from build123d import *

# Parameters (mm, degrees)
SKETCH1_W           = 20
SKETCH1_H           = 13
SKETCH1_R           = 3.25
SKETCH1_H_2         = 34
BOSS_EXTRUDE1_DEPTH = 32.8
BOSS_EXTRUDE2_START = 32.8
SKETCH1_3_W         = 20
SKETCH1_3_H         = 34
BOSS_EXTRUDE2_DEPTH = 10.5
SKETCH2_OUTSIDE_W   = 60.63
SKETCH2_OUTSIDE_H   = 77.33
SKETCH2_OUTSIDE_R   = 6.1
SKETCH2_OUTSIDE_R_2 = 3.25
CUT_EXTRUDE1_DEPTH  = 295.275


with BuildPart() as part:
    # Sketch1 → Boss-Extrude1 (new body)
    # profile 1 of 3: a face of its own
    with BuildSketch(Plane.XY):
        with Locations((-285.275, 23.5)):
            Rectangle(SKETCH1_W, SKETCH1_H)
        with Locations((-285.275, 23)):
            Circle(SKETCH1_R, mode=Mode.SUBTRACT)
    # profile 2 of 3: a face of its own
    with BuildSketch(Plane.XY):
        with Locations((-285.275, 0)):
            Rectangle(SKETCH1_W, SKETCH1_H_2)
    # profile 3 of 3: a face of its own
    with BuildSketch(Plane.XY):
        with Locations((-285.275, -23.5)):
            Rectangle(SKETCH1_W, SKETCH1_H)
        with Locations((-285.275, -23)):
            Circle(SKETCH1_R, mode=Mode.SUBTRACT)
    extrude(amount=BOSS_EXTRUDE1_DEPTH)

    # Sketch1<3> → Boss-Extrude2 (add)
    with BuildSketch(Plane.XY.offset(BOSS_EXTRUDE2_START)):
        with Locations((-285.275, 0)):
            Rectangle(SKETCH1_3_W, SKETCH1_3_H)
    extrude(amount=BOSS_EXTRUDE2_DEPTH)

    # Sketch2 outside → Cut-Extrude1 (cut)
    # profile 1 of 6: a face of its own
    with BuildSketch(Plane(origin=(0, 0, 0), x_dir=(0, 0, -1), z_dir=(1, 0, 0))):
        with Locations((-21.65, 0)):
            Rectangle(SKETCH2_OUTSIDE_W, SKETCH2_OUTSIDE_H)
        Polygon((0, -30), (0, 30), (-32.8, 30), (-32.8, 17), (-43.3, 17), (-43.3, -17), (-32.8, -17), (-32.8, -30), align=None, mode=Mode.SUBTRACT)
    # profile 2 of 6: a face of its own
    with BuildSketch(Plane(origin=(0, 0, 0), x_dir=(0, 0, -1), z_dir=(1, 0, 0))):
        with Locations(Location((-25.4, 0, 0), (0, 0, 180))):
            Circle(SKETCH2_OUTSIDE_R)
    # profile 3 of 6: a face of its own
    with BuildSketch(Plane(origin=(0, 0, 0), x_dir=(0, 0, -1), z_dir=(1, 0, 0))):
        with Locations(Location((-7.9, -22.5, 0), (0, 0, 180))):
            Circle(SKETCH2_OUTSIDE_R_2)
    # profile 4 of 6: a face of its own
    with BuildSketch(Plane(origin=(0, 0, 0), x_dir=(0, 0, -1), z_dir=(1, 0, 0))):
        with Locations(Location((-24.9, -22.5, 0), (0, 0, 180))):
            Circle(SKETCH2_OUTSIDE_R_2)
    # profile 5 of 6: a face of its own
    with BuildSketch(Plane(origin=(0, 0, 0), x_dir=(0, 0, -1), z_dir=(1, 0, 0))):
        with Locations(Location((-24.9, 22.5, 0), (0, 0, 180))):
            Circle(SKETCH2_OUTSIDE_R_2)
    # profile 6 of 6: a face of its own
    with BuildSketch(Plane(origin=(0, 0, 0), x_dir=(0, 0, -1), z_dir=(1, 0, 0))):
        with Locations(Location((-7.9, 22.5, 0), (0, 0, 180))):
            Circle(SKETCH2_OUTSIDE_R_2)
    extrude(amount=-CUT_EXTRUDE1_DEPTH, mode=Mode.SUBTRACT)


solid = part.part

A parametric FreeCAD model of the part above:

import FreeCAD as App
import Part
import Sketcher
from FreeCAD import Vector


def add_polygon(sketch, points):
    """Adds a closed chain of lines whose ends are joined by coincident constraints."""
    first, n = sketch.GeometryCount, len(points)
    for a, b in zip(points, points[1:] + points[:1]):
        sketch.addGeometry(Part.LineSegment(App.Vector(*a, 0), App.Vector(*b, 0)), False)
    for i in range(n):
        sketch.addConstraint(Sketcher.Constraint("Coincident", first + i, 2, first + (i + 1) % n, 1))

doc = App.newDocument("Part")
params = doc.addObject("Spreadsheet::Sheet", "Params")
for row, (alias, value) in enumerate([
    ("sketch1_diameter", "6.5 mm"),
    ("sketch1_width", "20 mm"),
    ("sketch1_height", "60 mm"),
    ("pad1_length", "32.8 mm"),
    ("sketch2_width", "20 mm"),
    ("sketch2_height", "34 mm"),
    ("pad2_length", "10.5 mm"),
    ("sketch3_diameter", "12.2 mm"),
    ("sketch3_diameter2", "6.5 mm"),
    ("sketch3_width", "60 mm"),
    ("sketch3_width2", "13 mm"),
    ("sketch3_height", "32.8 mm"),
    ("pocket1_length", "295.275 mm"),
], start=1):
    params.set(f"A{row}", alias)
    params.set(f"B{row}", "=" + value)
    params.setAlias(f"B{row}", alias)

body = doc.addObject("PartDesign::Body", "Body")

# Sketch on XY plane
sketch1 = body.newObject("Sketcher::SketchObject", "Sketch")
sketch1.AttachmentSupport = (doc.getObject("XY_Plane"), [""])
sketch1.MapMode = "FlatFace"
add_polygon(sketch1, [(-295.275, 30), (-295.275, -30), (-275.275, -30), (-275.275, 30)])  # lines 0-3
sketch1.addGeometry(Part.Circle(Vector(-285.275, 23, 0), Vector(0, 0, 1), 3.25), False)  # 4
sketch1.addGeometry(Part.Circle(Vector(-285.275, -23, 0), Vector(0, 0, 1), 3.25), False)  # 5
sketch1.addConstraint(Sketcher.Constraint("Vertical", 0))
sketch1.addConstraint(Sketcher.Constraint("Horizontal", 1))
sketch1.addConstraint(Sketcher.Constraint("Vertical", 2))
sketch1.addConstraint(Sketcher.Constraint("Horizontal", 3))
sketch1.addConstraint(Sketcher.Constraint("Equal", 4, 5))
sketch1.addConstraint(Sketcher.Constraint("Symmetric", 4, 3, 5, 3, -1))
sketch1.addConstraint(Sketcher.Constraint("Diameter", 4, 6.5))
sketch1.addConstraint(Sketcher.Constraint("DistanceX", 1, 1, 1, 2, 20.0))
sketch1.addConstraint(Sketcher.Constraint("DistanceY", 0, 2, 0, 1, 60.0))
sketch1.addConstraint(Sketcher.Constraint("DistanceY", -1, 1, 4, 3, 23.0))
sketch1.addConstraint(Sketcher.Constraint("DistanceY", 0, 2, -1, 1, 30.0))
sketch1.addConstraint(Sketcher.Constraint("DistanceX", 0, 2, 5, 3, 10.0))
sketch1.addConstraint(Sketcher.Constraint("DistanceX", 4, 3, -1, 1, 285.275))
sketch1.setExpression("Constraints[10]", "Params.sketch1_diameter")
sketch1.setExpression("Constraints[11]", "Params.sketch1_width")
sketch1.setExpression("Constraints[12]", "Params.sketch1_height")
pad1 = body.newObject("PartDesign::Pad", "Pad")
pad1.Profile = sketch1
pad1.setExpression("Length", "Params.pad1_length")

# Sketch on XY plane
sketch2 = body.newObject("Sketcher::SketchObject", "Sketch001")
sketch2.AttachmentSupport = (doc.getObject("XY_Plane"), [""])
sketch2.MapMode = "FlatFace"
sketch2.AttachmentOffset = App.Placement(Vector(0, 0, 32.8), App.Rotation())
add_polygon(sketch2, [(-295.275, 17), (-295.275, -17), (-275.275, -17), (-275.275, 17)])  # lines 0-3
sketch2.addConstraint(Sketcher.Constraint("Vertical", 0))
sketch2.addConstraint(Sketcher.Constraint("Horizontal", 1))
sketch2.addConstraint(Sketcher.Constraint("Vertical", 2))
sketch2.addConstraint(Sketcher.Constraint("Horizontal", 3))
sketch2.addConstraint(Sketcher.Constraint("DistanceX", 1, 1, 1, 2, 20.0))
sketch2.addConstraint(Sketcher.Constraint("DistanceY", 0, 2, 0, 1, 34.0))
sketch2.addConstraint(Sketcher.Constraint("DistanceY", 0, 2, -1, 1, 17.0))
sketch2.addConstraint(Sketcher.Constraint("DistanceX", 0, 2, -1, 1, 295.275))
sketch2.setExpression("Constraints[8]", "Params.sketch2_width")
sketch2.setExpression("Constraints[9]", "Params.sketch2_height")
pad2 = body.newObject("PartDesign::Pad", "Pad001")
pad2.Profile = sketch2
pad2.setExpression("Length", "Params.pad2_length")

# Sketch on YZ plane
sketch3 = body.newObject("Sketcher::SketchObject", "Sketch002")
sketch3.AttachmentSupport = (doc.getObject("YZ_Plane"), [""])
sketch3.MapMode = "FlatFace"
add_polygon(sketch3, [(38.665, 51.965), (-38.665, 51.965), (-38.665, -8.665), (38.665, -8.665)])  # lines 0-3
add_polygon(sketch3, [(30, 0), (-30, 0), (-30, 32.8), (-17, 32.8), (-17, 43.3), (17, 43.3), (17, 32.8), (30, 32.8)])  # lines 4-11
sketch3.addGeometry(Part.Circle(Vector(0, 25.4, 0), Vector(0, 0, 1), 6.1), False)  # 12
sketch3.addGeometry(Part.Circle(Vector(-22.5, 7.9, 0), Vector(0, 0, 1), 3.25), False)  # 13
sketch3.addGeometry(Part.Circle(Vector(-22.5, 24.9, 0), Vector(0, 0, 1), 3.25), False)  # 14
sketch3.addGeometry(Part.Circle(Vector(22.5, 24.9, 0), Vector(0, 0, 1), 3.25), False)  # 15
sketch3.addGeometry(Part.Circle(Vector(22.5, 7.9, 0), Vector(0, 0, 1), 3.25), False)  # 16
sketch3.addConstraint(Sketcher.Constraint("Horizontal", 0))
sketch3.addConstraint(Sketcher.Constraint("Vertical", 1))
sketch3.addConstraint(Sketcher.Constraint("Horizontal", 2))
sketch3.addConstraint(Sketcher.Constraint("Vertical", 3))
sketch3.addConstraint(Sketcher.Constraint("Horizontal", 4))
sketch3.addConstraint(Sketcher.Constraint("Vertical", 5))
sketch3.addConstraint(Sketcher.Constraint("Horizontal", 6))
sketch3.addConstraint(Sketcher.Constraint("Vertical", 7))
sketch3.addConstraint(Sketcher.Constraint("Horizontal", 8))
sketch3.addConstraint(Sketcher.Constraint("Vertical", 9))
sketch3.addConstraint(Sketcher.Constraint("Horizontal", 10))
sketch3.addConstraint(Sketcher.Constraint("Vertical", 11))
sketch3.addConstraint(Sketcher.Constraint("Equal", 13, 14))
sketch3.addConstraint(Sketcher.Constraint("Equal", 14, 15))
sketch3.addConstraint(Sketcher.Constraint("Equal", 15, 16))
sketch3.addConstraint(Sketcher.Constraint("Symmetric", 4, 2, 11, 2, -1, 1))
sketch3.addConstraint(Sketcher.Constraint("Symmetric", 14, 3, 15, 3, -2))
sketch3.addConstraint(Sketcher.Constraint("Symmetric", 13, 3, 16, 3, -2))
sketch3.addConstraint(Sketcher.Constraint("Symmetric", 6, 2, 9, 2, -2))
sketch3.addConstraint(Sketcher.Constraint("PointOnObject", 12, 3, -2))
sketch3.addConstraint(Sketcher.Constraint("Vertical", 13, 3, 14, 3))
sketch3.addConstraint(Sketcher.Constraint("Diameter", 12, 12.2))
sketch3.addConstraint(Sketcher.Constraint("Diameter", 13, 6.5))
sketch3.addConstraint(Sketcher.Constraint("DistanceX", 4, 2, 4, 1, 60.0))
sketch3.addConstraint(Sketcher.Constraint("DistanceX", 6, 1, 6, 2, 13.0))
sketch3.addConstraint(Sketcher.Constraint("DistanceY", 5, 1, 5, 2, 32.8))
sketch3.addConstraint(Sketcher.Constraint("DistanceY", 7, 1, 7, 2, 10.5))
sketch3.addConstraint(Sketcher.Constraint("DistanceY", 13, 3, 14, 3, 17.0))
sketch3.addConstraint(Sketcher.Constraint("DistanceX", 14, 3, 15, 3, 45.0))
sketch3.addConstraint(Sketcher.Constraint("DistanceX", 0, 2, 0, 1, 77.33))
sketch3.addConstraint(Sketcher.Constraint("DistanceY", 1, 2, 1, 1, 60.63))
sketch3.addConstraint(Sketcher.Constraint("DistanceY", -1, 1, 12, 3, 25.4))
sketch3.addConstraint(Sketcher.Constraint("DistanceY", -1, 1, 13, 3, 7.9))
sketch3.addConstraint(Sketcher.Constraint("DistanceX", 0, 2, -1, 1, 38.665))
sketch3.addConstraint(Sketcher.Constraint("DistanceY", -1, 1, 0, 2, 51.965))
sketch3.setExpression("Constraints[33]", "Params.sketch3_diameter")
sketch3.setExpression("Constraints[34]", "Params.sketch3_diameter2")
sketch3.setExpression("Constraints[35]", "Params.sketch3_width")
sketch3.setExpression("Constraints[36]", "Params.sketch3_width2")
sketch3.setExpression("Constraints[37]", "Params.sketch3_height")
pocket1 = body.newObject("PartDesign::Pocket", "Pocket")
pocket1.Profile = sketch3
pocket1.setExpression("Length", "Params.pocket1_length")

doc.recompute()
